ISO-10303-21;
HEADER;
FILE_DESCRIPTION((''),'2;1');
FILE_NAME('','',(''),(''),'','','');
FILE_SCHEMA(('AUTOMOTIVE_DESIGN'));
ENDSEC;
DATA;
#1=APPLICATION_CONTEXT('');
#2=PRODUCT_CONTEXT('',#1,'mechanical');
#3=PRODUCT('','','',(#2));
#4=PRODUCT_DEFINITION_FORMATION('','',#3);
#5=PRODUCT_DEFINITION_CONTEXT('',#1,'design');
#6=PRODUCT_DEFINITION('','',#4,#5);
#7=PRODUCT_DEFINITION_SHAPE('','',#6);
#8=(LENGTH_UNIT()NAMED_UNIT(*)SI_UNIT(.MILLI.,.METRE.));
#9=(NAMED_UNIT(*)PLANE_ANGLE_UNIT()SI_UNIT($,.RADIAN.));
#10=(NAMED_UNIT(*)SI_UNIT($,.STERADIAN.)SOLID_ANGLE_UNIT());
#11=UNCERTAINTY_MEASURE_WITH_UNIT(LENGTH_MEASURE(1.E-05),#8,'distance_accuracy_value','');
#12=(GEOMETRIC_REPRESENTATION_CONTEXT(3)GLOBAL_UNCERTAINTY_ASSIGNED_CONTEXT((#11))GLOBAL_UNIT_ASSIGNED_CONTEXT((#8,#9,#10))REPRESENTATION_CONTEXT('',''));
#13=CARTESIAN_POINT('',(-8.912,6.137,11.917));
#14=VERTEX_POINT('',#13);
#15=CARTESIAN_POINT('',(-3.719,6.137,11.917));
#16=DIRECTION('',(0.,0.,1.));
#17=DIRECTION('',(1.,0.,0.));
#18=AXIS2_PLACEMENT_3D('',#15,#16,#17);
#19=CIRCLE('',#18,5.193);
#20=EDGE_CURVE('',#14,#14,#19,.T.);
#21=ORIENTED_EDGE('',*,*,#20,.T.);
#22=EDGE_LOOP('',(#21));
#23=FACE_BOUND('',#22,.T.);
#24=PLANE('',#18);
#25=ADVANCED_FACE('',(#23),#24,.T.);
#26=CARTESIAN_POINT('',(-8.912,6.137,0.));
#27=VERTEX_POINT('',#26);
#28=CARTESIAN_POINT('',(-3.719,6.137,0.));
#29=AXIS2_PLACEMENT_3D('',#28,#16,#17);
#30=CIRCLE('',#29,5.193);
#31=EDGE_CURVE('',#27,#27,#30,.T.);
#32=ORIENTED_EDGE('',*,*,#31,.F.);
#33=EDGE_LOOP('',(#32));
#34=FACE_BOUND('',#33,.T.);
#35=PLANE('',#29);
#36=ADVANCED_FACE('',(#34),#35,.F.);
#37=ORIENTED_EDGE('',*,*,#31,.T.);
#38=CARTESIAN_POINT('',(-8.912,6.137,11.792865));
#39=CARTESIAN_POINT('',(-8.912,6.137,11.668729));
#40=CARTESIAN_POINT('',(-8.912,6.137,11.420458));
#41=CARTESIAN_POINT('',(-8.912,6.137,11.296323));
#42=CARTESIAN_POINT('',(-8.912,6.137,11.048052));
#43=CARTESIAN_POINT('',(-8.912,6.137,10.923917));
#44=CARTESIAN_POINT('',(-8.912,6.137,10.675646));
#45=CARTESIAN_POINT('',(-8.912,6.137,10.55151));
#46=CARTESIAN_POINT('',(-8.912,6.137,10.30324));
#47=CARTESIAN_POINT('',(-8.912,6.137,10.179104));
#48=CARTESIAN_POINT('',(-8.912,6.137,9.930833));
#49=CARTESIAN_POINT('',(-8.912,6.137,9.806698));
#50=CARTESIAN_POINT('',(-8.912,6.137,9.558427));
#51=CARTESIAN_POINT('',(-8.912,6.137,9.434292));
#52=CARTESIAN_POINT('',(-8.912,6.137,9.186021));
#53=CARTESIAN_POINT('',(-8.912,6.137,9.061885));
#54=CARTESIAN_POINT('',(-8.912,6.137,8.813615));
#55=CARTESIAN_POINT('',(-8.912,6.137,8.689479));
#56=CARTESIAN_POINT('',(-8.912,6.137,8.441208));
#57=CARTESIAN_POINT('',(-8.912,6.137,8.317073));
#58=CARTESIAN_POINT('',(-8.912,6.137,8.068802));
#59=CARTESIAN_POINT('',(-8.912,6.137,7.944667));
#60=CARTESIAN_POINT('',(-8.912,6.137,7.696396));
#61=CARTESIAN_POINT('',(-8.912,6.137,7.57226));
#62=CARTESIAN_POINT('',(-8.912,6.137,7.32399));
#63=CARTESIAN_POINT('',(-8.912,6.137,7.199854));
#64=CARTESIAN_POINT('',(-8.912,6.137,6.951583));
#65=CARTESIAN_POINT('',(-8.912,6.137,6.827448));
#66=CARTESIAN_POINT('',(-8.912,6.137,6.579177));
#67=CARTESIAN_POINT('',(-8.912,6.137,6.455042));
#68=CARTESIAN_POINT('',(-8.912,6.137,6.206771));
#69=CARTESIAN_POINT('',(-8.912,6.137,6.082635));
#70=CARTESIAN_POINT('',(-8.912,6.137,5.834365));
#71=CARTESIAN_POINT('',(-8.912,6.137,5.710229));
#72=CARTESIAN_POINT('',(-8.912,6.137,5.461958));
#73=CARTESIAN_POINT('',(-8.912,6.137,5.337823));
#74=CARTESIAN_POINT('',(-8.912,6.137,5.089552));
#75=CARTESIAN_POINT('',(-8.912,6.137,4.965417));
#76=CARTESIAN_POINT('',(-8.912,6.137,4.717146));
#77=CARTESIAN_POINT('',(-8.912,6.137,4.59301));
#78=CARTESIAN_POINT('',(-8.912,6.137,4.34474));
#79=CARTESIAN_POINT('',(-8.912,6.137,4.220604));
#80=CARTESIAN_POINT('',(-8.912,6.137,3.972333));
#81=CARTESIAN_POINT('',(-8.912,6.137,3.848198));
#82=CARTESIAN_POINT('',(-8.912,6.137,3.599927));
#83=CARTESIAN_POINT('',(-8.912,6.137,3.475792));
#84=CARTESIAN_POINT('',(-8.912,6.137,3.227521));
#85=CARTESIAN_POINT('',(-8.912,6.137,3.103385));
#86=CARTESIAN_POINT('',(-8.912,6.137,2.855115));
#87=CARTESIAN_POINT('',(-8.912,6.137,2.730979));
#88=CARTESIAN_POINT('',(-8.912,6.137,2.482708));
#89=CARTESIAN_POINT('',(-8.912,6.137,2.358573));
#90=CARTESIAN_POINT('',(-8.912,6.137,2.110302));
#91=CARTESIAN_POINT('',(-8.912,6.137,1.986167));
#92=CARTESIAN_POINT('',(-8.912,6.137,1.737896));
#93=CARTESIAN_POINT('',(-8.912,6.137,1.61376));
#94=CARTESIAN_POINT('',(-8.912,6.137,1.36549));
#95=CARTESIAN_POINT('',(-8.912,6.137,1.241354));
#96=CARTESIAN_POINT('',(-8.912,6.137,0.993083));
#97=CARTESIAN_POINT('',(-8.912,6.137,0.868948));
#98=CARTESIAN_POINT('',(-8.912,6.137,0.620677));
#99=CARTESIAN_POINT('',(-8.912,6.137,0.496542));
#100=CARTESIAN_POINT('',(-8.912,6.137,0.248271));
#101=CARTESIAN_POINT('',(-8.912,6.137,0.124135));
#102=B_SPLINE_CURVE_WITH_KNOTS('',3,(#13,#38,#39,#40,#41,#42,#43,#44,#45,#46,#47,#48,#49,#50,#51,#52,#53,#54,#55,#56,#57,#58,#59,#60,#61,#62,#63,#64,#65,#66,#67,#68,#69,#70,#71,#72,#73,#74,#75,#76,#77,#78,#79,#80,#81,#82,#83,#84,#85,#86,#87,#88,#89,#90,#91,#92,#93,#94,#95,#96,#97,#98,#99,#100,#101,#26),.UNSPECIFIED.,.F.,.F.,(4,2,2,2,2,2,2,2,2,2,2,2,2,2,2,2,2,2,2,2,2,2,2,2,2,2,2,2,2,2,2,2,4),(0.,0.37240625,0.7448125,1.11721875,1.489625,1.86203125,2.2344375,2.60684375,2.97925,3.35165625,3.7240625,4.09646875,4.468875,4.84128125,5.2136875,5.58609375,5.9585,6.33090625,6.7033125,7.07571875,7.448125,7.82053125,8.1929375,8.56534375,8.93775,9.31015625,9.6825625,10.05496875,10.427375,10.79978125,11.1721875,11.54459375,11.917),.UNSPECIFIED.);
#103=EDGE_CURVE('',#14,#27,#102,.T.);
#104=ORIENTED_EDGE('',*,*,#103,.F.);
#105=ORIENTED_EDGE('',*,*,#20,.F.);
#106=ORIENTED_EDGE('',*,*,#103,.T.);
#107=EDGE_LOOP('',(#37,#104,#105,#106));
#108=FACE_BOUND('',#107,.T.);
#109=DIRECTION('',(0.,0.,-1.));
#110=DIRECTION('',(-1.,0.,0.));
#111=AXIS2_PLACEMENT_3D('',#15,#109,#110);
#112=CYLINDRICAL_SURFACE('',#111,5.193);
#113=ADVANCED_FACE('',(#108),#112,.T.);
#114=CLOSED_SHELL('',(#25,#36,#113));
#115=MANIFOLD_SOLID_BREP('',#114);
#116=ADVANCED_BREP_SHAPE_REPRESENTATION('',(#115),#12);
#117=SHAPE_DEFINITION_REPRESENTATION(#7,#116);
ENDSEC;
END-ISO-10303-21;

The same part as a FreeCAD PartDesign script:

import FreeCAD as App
import Part
import Sketcher

V = App.Vector
Q = App.Units.Quantity

doc = App.newDocument("Part")
body = doc.addObject("PartDesign::Body", "Body")

# Sketch on XY plane
sketch1 = body.newObject("Sketcher::SketchObject", "Sketch")
sketch1.AttachmentSupport = (doc.getObject("XY_Plane"), [""])
sketch1.MapMode = "FlatFace"
sketch1.addGeometry(Part.Circle(V(-3.719, 6.137, 0), V(0, 0, 1), 5.193), False)
sketch1.addConstraint([
    Sketcher.Constraint("Diameter", 0, Q("10.386 mm")),
    Sketcher.Constraint("DistanceX", 0, 3, -1, 1, Q("3.719 mm")),
    Sketcher.Constraint("DistanceY", -1, 1, 0, 3, Q("6.137 mm")),
])
pad1 = body.newObject("PartDesign::Pad", "Pad")
pad1.Profile = sketch1
pad1.Length = 11.917

doc.recompute()
